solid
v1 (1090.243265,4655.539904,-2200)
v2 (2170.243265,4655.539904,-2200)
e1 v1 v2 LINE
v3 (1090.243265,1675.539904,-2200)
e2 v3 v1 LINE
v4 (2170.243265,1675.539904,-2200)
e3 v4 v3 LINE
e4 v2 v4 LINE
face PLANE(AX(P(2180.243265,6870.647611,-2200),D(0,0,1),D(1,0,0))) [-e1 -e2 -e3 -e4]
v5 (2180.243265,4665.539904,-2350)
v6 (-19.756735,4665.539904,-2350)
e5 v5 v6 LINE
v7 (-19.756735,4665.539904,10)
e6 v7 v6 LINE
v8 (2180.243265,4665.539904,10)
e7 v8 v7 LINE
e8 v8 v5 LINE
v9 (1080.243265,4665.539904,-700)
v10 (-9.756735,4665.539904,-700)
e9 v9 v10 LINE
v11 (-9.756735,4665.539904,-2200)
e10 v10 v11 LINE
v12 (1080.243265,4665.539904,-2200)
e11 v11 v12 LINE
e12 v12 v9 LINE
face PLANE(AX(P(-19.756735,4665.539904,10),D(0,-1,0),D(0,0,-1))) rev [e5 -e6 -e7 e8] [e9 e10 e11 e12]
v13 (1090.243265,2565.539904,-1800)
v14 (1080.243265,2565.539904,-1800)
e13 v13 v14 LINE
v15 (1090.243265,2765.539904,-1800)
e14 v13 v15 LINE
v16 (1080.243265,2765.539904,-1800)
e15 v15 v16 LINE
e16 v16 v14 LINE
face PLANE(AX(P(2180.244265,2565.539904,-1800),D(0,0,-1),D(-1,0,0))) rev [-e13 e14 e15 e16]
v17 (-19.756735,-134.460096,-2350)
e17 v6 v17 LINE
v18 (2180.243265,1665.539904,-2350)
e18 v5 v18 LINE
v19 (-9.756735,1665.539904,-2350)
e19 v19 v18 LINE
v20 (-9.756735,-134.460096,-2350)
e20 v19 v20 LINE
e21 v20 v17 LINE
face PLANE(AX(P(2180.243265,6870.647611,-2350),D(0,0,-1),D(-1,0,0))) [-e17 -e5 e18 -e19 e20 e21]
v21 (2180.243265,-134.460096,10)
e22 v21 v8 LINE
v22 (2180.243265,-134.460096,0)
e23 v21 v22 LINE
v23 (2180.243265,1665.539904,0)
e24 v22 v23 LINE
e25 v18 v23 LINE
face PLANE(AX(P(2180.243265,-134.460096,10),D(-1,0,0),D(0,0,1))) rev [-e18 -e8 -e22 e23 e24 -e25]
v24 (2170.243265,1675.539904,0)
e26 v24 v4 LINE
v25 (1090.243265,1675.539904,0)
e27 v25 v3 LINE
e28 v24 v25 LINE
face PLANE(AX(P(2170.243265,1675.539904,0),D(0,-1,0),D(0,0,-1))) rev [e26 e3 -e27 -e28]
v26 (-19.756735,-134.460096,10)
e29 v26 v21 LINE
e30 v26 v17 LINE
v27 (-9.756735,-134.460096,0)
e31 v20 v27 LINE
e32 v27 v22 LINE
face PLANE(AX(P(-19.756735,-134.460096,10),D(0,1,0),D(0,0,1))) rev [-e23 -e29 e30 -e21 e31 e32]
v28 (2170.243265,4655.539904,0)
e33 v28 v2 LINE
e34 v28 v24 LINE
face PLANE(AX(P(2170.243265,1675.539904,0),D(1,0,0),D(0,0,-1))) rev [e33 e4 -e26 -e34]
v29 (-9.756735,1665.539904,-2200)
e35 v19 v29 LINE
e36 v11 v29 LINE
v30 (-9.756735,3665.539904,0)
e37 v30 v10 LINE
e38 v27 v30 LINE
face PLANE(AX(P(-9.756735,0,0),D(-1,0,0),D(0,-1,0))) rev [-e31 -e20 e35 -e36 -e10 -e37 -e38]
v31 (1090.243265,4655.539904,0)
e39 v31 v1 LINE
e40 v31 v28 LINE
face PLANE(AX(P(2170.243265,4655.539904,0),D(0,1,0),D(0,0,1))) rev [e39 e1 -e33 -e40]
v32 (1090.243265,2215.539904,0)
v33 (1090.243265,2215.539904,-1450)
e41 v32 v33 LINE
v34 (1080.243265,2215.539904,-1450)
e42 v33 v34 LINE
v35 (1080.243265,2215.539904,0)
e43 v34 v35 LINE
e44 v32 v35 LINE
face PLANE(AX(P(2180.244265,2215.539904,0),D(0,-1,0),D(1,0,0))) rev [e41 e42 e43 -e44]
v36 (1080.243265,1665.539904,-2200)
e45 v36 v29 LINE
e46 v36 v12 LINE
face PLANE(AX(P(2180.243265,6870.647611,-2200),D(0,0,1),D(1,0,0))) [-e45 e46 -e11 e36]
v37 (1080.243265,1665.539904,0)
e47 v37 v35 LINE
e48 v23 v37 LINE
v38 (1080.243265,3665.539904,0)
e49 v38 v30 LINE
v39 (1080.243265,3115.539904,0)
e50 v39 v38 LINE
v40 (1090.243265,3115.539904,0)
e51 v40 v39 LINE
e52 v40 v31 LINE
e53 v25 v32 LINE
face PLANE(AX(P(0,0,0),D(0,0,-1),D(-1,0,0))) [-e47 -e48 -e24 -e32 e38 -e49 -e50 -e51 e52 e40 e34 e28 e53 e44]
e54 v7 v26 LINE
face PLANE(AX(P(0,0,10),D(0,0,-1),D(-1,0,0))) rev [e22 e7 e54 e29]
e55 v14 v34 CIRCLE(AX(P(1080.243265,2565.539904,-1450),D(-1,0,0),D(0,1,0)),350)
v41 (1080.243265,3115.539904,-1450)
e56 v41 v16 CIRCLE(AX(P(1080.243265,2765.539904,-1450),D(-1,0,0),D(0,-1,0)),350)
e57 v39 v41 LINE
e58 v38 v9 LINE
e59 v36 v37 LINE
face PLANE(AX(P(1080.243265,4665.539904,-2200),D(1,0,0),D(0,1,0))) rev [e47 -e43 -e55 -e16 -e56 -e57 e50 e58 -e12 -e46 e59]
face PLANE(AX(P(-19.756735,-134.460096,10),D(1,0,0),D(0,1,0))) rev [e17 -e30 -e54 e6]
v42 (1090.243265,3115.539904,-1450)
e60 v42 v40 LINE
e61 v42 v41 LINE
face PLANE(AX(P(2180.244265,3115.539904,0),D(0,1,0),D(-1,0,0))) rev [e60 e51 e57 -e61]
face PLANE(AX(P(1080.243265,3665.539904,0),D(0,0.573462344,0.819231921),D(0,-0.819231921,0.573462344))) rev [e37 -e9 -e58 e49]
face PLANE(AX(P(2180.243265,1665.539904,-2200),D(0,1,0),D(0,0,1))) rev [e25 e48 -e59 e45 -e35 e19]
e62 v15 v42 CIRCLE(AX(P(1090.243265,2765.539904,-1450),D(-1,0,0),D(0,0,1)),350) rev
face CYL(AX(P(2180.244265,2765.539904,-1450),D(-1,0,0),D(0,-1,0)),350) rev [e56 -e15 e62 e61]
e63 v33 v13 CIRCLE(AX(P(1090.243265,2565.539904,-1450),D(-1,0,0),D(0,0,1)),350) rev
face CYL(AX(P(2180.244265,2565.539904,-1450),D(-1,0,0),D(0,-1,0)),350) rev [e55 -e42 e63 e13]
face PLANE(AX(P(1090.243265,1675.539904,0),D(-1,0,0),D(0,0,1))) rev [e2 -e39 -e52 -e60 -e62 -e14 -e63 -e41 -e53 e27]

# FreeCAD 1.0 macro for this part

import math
import FreeCAD as App
import Part
import Sketcher
from FreeCAD import Vector


def add_polygon(sketch, points):
    """Adds a closed chain of lines whose ends are joined by coincident constraints."""
    first, n = sketch.GeometryCount, len(points)
    for a, b in zip(points, points[1:] + points[:1]):
        sketch.addGeometry(Part.LineSegment(App.Vector(*a, 0), App.Vector(*b, 0)), False)
    for i in range(n):
        sketch.addConstraint(Sketcher.Constraint("Coincident", first + i, 2, first + (i + 1) % n, 1))

doc = App.newDocument("Part")
params = doc.addObject("Spreadsheet::Sheet", "Params")
for row, (alias, value) in enumerate([
    ("sketch1_width", "2200 mm"),
    ("sketch1_height", "4800 mm"),
    ("pad1_length", "10 mm"),
    ("sketch2_width", "1000 mm"),
    ("sketch2_height", "700 mm"),
    ("pad2_length", "1100 mm"),
    ("sketch3_width", "1100 mm"),
    ("sketch3_height", "3000 mm"),
    ("pad3_length", "2200 mm"),
    ("sketch4_width", "1080 mm"),
    ("sketch4_height", "2980 mm"),
    ("pocket1_length", "2200 mm"),
    ("sketch5_radius", "350 mm"),
    ("sketch5_width", "900 mm"),
    ("sketch5_height", "1450 mm"),
    ("sketch6_width", "2200 mm"),
    ("sketch6_height", "150 mm"),
    ("pad4_length", "3000 mm"),
    ("sketch7_width", "3800 mm"),
    ("sketch7_width2", "4800 mm"),
    ("sketch7_height", "2350 mm"),
    ("sketch7_height2", "1650 mm"),
    ("pad5_length", "10 mm"),
], start=1):
    params.set(f"A{row}", alias)
    params.set(f"B{row}", "=" + value)
    params.setAlias(f"B{row}", alias)

body = doc.addObject("PartDesign::Body", "Body")

# Sketch on XY plane
sketch1 = body.newObject("Sketcher::SketchObject", "Sketch")
sketch1.AttachmentSupport = (doc.getObject("XY_Plane"), [""])
sketch1.MapMode = "FlatFace"
add_polygon(sketch1, [(-20, 4666), (-20, -134), (2180, -134), (2180, 4666)])  # lines 0-3
sketch1.addConstraint([
    Sketcher.Constraint("Vertical", 0),
    Sketcher.Constraint("Horizontal", 1),
    Sketcher.Constraint("Vertical", 2),
    Sketcher.Constraint("Horizontal", 3),
    Sketcher.Constraint("DistanceX", 1, 1, 1, 2, 2200.0),
    Sketcher.Constraint("DistanceY", 0, 2, 0, 1, 4800.0),
    Sketcher.Constraint("DistanceX", 0, 2, -1, 1, 19.756735),
    Sketcher.Constraint("DistanceY", 0, 2, -1, 1, 134.460096),
])
sketch1.setExpression("Constraints[8]", "Params.sketch1_width")
sketch1.setExpression("Constraints[9]", "Params.sketch1_height")
pad1 = body.newObject("PartDesign::Pad", "Pad")
pad1.Profile = sketch1
pad1.setExpression("Length", "Params.pad1_length")

# Sketch on YZ plane
sketch2 = body.newObject("Sketcher::SketchObject", "Sketch001")
sketch2.AttachmentSupport = (doc.getObject("YZ_Plane"), [""])
sketch2.MapMode = "FlatFace"
sketch2.AttachmentOffset = App.Placement(Vector(0, 0, -19.756735), App.Rotation())
add_polygon(sketch2, [(4666, 0), (4666, -700), (3666, 0)])  # lines 0-2
sketch2.addConstraint([
    Sketcher.Constraint("Vertical", 0),
    Sketcher.Constraint("Horizontal", 2),
    Sketcher.Constraint("PointOnObject", 1, 2, -1),
    Sketcher.Constraint("DistanceX", 2, 1, 2, 2, 1000.0),
    Sketcher.Constraint("DistanceY", 0, 2, 0, 1, 700.0),
    Sketcher.Constraint("DistanceX", -1, 1, 0, 2, 4665.539904),
])
sketch2.setExpression("Constraints[6]", "Params.sketch2_width")
sketch2.setExpression("Constraints[7]", "Params.sketch2_height")
pad2 = body.newObject("PartDesign::Pad", "Pad001")
pad2.Profile = sketch2
pad2.setExpression("Length", "Params.pad2_length")

# Sketch on XY plane
sketch3 = body.newObject("Sketcher::SketchObject", "Sketch002")
sketch3.AttachmentSupport = (doc.getObject("XY_Plane"), [""])
sketch3.MapMode = "FlatFace"
add_polygon(sketch3, [(2180, 4666), (2180, 1666), (1080, 1666), (1080, 4666)])  # lines 0-3
sketch3.addConstraint([
    Sketcher.Constraint("Vertical", 0),
    Sketcher.Constraint("Horizontal", 1),
    Sketcher.Constraint("Vertical", 2),
    Sketcher.Constraint("Horizontal", 3),
    Sketcher.Constraint("DistanceX", 1, 2, 1, 1, 1100.0),
    Sketcher.Constraint("DistanceY", 0, 2, 0, 1, 3000.0),
    Sketcher.Constraint("DistanceX", -1, 1, 0, 2, 2180.243265),
    Sketcher.Constraint("DistanceY", -1, 1, 0, 2, 1665.539904),
])
sketch3.setExpression("Constraints[8]", "Params.sketch3_width")
sketch3.setExpression("Constraints[9]", "Params.sketch3_height")
pad3 = body.newObject("PartDesign::Pad", "Pad002")
pad3.Profile = sketch3
pad3.setExpression("Length", "Params.pad3_length")
pad3.Reversed = True

# Sketch on XY plane
sketch4 = body.newObject("Sketcher::SketchObject", "Sketch003")
sketch4.AttachmentSupport = (doc.getObject("XY_Plane"), [""])
sketch4.MapMode = "FlatFace"
sketch4.AttachmentOffset = App.Placement(Vector(0, 0, -2200), App.Rotation())
add_polygon(sketch4, [(2170, 4656), (2170, 1676), (1090, 1676), (1090, 4656)])  # lines 0-3
sketch4.addConstraint([
    Sketcher.Constraint("Vertical", 0),
    Sketcher.Constraint("Horizontal", 1),
    Sketcher.Constraint("Vertical", 2),
    Sketcher.Constraint("Horizontal", 3),
    Sketcher.Constraint("DistanceX", 1, 2, 1, 1, 1080.0),
    Sketcher.Constraint("DistanceY", 0, 2, 0, 1, 2980.0),
    Sketcher.Constraint("DistanceX", -1, 1, 0, 2, 2170.243265),
    Sketcher.Constraint("DistanceY", -1, 1, 0, 2, 1675.539904),
])
sketch4.setExpression("Constraints[8]", "Params.sketch4_width")
sketch4.setExpression("Constraints[9]", "Params.sketch4_height")
pocket1 = body.newObject("PartDesign::Pocket", "Pocket")
pocket1.Profile = sketch4
pocket1.setExpression("Length", "Params.pocket1_length")
pocket1.Reversed = True

# Sketch on YZ plane
sketch5 = body.newObject("Sketcher::SketchObject", "Sketch004")
sketch5.AttachmentSupport = (doc.getObject("YZ_Plane"), [""])
sketch5.MapMode = "FlatFace"
sketch5.AttachmentOffset = App.Placement(Vector(0, 0, 1080.243265), App.Rotation())
sketch5.addGeometry([
    Part.LineSegment(Vector(2216, -1450, 0), Vector(2216, 0, 0)),  # 0
    Part.LineSegment(Vector(2216, 0, 0), Vector(3116, 0, 0)),  # 1
    Part.LineSegment(Vector(3116, 0, 0), Vector(3116, -1450, 0)),  # 2
    Part.ArcOfCircle(Part.Circle(Vector(2766, -1450, 0), Vector(0, 0, 1), 350), math.radians(-90), math.radians(0)),  # 3
    Part.LineSegment(Vector(2766, -1800, 0), Vector(2566, -1800, 0)),  # 4
    Part.ArcOfCircle(Part.Circle(Vector(2566, -1450, 0), Vector(0, 0, 1), 350), math.radians(-180), math.radians(-90)),  # 5
], False)
sketch5.addConstraint([
    Sketcher.Constraint("Coincident", 0, 2, 1, 1),
    Sketcher.Constraint("Coincident", 1, 2, 2, 1),
    Sketcher.Constraint("Tangent", 2, 2, 3, 2),
    Sketcher.Constraint("Tangent", 3, 1, 4, 1),
    Sketcher.Constraint("Tangent", 4, 2, 5, 2),
    Sketcher.Constraint("Tangent", 5, 1, 0, 1),
    Sketcher.Constraint("Vertical", 0),
    Sketcher.Constraint("Horizontal", 1),
    Sketcher.Constraint("Vertical", 2),
    Sketcher.Constraint("Horizontal", 4),
    Sketcher.Constraint("Equal", 3, 5),
    Sketcher.Constraint("PointOnObject", 0, 2, -1),
    Sketcher.Constraint("Radius", 3, 350.0),
    Sketcher.Constraint("DistanceX", 1, 1, 1, 2, 900.0),
    Sketcher.Constraint("DistanceY", 0, 1, 0, 2, 1450.0),
    Sketcher.Constraint("DistanceX", -1, 1, 3, 3, 2765.539904),
])
sketch5.setExpression("Constraints[12]", "Params.sketch5_radius")
sketch5.setExpression("Constraints[13]", "Params.sketch5_width")
sketch5.setExpression("Constraints[14]", "Params.sketch5_height")
pocket2 = body.newObject("PartDesign::Pocket", "Pocket001")
pocket2.Profile = sketch5
pocket2.Type = "UpToFirst"
pocket2.Reversed = True

# Sketch on XZ plane
sketch6 = body.newObject("Sketcher::SketchObject", "Sketch005")
sketch6.AttachmentSupport = (doc.getObject("XZ_Plane"), [""])
sketch6.MapMode = "FlatFace"
sketch6.AttachmentOffset = App.Placement(Vector(0, 0, -1665.539904), App.Rotation())
add_polygon(sketch6, [(-20, -2200), (-20, -2350), (2180, -2350), (2180, -2200)])  # lines 0-3
sketch6.addConstraint([
    Sketcher.Constraint("Vertical", 0),
    Sketcher.Constraint("Horizontal", 1),
    Sketcher.Constraint("Vertical", 2),
    Sketcher.Constraint("Horizontal", 3),
    Sketcher.Constraint("DistanceX", 1, 1, 1, 2, 2200.0),
    Sketcher.Constraint("DistanceY", 0, 2, 0, 1, 150.0),
    Sketcher.Constraint("DistanceY", 0, 2, -1, 1, 2350.0),
    Sketcher.Constraint("DistanceX", 0, 2, -1, 1, 19.756735),
])
sketch6.setExpression("Constraints[8]", "Params.sketch6_width")
sketch6.setExpression("Constraints[9]", "Params.sketch6_height")
pad4 = body.newObject("PartDesign::Pad", "Pad003")
pad4.Profile = sketch6
pad4.setExpression("Length", "Params.pad4_length")
pad4.Reversed = True

# Sketch on YZ plane
sketch7 = body.newObject("Sketcher::SketchObject", "Sketch006")
sketch7.AttachmentSupport = (doc.getObject("YZ_Plane"), [""])
sketch7.MapMode = "FlatFace"
sketch7.AttachmentOffset = App.Placement(Vector(0, 0, -19.756735), App.Rotation())
add_polygon(sketch7, [(-134, -2350), (-134, 0), (3666, 0), (4666, -700), (4666, -2350)])  # lines 0-4
sketch7.addConstraint([
    Sketcher.Constraint("Vertical", 0),
    Sketcher.Constraint("Horizontal", 1),
    Sketcher.Constraint("Vertical", 3),
    Sketcher.Constraint("Horizontal", 4),
    Sketcher.Constraint("PointOnObject", 0, 2, -1),
    Sketcher.Constraint("DistanceX", 1, 1, 1, 2, 3800.0),
    Sketcher.Constraint("DistanceX", 4, 2, 4, 1, 4800.0),
    Sketcher.Constraint("DistanceY", 0, 1, 0, 2, 2350.0),
    Sketcher.Constraint("DistanceY", 3, 2, 3, 1, 1650.0),
    Sketcher.Constraint("DistanceX", 0, 2, -1, 1, 134.460096),
])
sketch7.setExpression("Constraints[10]", "Params.sketch7_width")
sketch7.setExpression("Constraints[11]", "Params.sketch7_width2")
sketch7.setExpression("Constraints[12]", "Params.sketch7_height")
sketch7.setExpression("Constraints[13]", "Params.sketch7_height2")
pad5 = body.newObject("PartDesign::Pad", "Pad004")
pad5.Profile = sketch7
pad5.setExpression("Length", "Params.pad5_length")

doc.recompute()
